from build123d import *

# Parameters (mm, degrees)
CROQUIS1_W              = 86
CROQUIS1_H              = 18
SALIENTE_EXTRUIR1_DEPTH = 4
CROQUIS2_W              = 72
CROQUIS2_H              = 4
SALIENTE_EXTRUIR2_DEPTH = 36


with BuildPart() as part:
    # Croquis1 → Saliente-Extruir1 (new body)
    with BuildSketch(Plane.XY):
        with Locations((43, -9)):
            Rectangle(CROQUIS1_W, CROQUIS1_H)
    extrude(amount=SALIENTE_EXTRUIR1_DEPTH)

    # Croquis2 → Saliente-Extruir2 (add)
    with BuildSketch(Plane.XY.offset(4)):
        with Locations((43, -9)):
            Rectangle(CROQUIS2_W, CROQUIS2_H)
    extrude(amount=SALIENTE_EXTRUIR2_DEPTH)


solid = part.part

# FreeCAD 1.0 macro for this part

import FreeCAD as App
import Part
import Sketcher
from FreeCAD import Vector

doc = App.newDocument("Part")
body = doc.addObject("PartDesign::Body", "Body")

# Sketch on XY plane
sketch1 = doc.addObject("Sketcher::SketchObject", "Sketch")
body.addObject(sketch1)
sketch1.AttachmentSupport = (doc.XY_Plane, [""])
sketch1.MapMode = "FlatFace"
sketch1.addGeometry(Part.LineSegment(Vector(0, 0, 0), Vector(0, -18, 0)), False)
sketch1.addGeometry(Part.LineSegment(Vector(0, -18, 0), Vector(86, -18, 0)), False)
sketch1.addGeometry(Part.LineSegment(Vector(86, -18, 0), Vector(86, 0, 0)), False)
sketch1.addGeometry(Part.LineSegment(Vector(86, 0, 0), Vector(0, 0, 0)), False)
sketch1.addConstraint(Sketcher.Constraint("Coincident", 0, 2, 1, 1))
sketch1.addConstraint(Sketcher.Constraint("Coincident", 1, 2, 2, 1))
sketch1.addConstraint(Sketcher.Constraint("Coincident", 2, 2, 3, 1))
sketch1.addConstraint(Sketcher.Constraint("Coincident", 3, 2, 0, 1))
sketch1.addConstraint(Sketcher.Constraint("Vertical", 0))
sketch1.addConstraint(Sketcher.Constraint("Horizontal", 1))
sketch1.addConstraint(Sketcher.Constraint("Vertical", 2))
sketch1.addConstraint(Sketcher.Constraint("Horizontal", 3))
sketch1.addConstraint(Sketcher.Constraint("Coincident", 3, 2, -1, 1))
sketch1.addConstraint(Sketcher.Constraint("DistanceX", 1, 1, 1, 2, 86.0))
sketch1.addConstraint(Sketcher.Constraint("DistanceY", 0, 2, 0, 1, 18.0))
pad1 = doc.addObject("PartDesign::Pad", "Pad")
body.addObject(pad1)
pad1.Profile = sketch1
pad1.Length = 4

# Sketch on XY plane
sketch2 = doc.addObject("Sketcher::SketchObject", "Sketch001")
body.addObject(sketch2)
sketch2.AttachmentSupport = (doc.XY_Plane, [""])
sketch2.MapMode = "FlatFace"
sketch2.AttachmentOffset = App.Placement(Vector(0, 0, 4), App.Rotation())
sketch2.addGeometry(Part.LineSegment(Vector(7, -7, 0), Vector(7, -11, 0)), False)
sketch2.addGeometry(Part.LineSegment(Vector(7, -11, 0), Vector(79, -11, 0)), False)
sketch2.addGeometry(Part.LineSegment(Vector(79, -11, 0), Vector(79, -7, 0)), False)
sketch2.addGeometry(Part.LineSegment(Vector(79, -7, 0), Vector(7, -7, 0)), False)
sketch2.addConstraint(Sketcher.Constraint("Coincident", 0, 2, 1, 1))
sketch2.addConstraint(Sketcher.Constraint("Coincident", 1, 2, 2, 1))
sketch2.addConstraint(Sketcher.Constraint("Coincident", 2, 2, 3, 1))
sketch2.addConstraint(Sketcher.Constraint("Coincident", 3, 2, 0, 1))
sketch2.addConstraint(Sketcher.Constraint("Vertical", 0))
sketch2.addConstraint(Sketcher.Constraint("Horizontal", 1))
sketch2.addConstraint(Sketcher.Constraint("Vertical", 2))
sketch2.addConstraint(Sketcher.Constraint("Horizontal", 3))
sketch2.addConstraint(Sketcher.Constraint("DistanceX", 1, 1, 1, 2, 72.0))
sketch2.addConstraint(Sketcher.Constraint("DistanceY", 0, 2, 0, 1, 4.0))
sketch2.addConstraint(Sketcher.Constraint("DistanceX", -1, 1, 0, 2, 7.0))
sketch2.addConstraint(Sketcher.Constraint("DistanceY", 0, 2, -1, 1, 11.0))
pad2 = doc.addObject("PartDesign::Pad", "Pad001")
body.addObject(pad2)
pad2.Profile = sketch2
pad2.Length = 36

doc.recompute()
